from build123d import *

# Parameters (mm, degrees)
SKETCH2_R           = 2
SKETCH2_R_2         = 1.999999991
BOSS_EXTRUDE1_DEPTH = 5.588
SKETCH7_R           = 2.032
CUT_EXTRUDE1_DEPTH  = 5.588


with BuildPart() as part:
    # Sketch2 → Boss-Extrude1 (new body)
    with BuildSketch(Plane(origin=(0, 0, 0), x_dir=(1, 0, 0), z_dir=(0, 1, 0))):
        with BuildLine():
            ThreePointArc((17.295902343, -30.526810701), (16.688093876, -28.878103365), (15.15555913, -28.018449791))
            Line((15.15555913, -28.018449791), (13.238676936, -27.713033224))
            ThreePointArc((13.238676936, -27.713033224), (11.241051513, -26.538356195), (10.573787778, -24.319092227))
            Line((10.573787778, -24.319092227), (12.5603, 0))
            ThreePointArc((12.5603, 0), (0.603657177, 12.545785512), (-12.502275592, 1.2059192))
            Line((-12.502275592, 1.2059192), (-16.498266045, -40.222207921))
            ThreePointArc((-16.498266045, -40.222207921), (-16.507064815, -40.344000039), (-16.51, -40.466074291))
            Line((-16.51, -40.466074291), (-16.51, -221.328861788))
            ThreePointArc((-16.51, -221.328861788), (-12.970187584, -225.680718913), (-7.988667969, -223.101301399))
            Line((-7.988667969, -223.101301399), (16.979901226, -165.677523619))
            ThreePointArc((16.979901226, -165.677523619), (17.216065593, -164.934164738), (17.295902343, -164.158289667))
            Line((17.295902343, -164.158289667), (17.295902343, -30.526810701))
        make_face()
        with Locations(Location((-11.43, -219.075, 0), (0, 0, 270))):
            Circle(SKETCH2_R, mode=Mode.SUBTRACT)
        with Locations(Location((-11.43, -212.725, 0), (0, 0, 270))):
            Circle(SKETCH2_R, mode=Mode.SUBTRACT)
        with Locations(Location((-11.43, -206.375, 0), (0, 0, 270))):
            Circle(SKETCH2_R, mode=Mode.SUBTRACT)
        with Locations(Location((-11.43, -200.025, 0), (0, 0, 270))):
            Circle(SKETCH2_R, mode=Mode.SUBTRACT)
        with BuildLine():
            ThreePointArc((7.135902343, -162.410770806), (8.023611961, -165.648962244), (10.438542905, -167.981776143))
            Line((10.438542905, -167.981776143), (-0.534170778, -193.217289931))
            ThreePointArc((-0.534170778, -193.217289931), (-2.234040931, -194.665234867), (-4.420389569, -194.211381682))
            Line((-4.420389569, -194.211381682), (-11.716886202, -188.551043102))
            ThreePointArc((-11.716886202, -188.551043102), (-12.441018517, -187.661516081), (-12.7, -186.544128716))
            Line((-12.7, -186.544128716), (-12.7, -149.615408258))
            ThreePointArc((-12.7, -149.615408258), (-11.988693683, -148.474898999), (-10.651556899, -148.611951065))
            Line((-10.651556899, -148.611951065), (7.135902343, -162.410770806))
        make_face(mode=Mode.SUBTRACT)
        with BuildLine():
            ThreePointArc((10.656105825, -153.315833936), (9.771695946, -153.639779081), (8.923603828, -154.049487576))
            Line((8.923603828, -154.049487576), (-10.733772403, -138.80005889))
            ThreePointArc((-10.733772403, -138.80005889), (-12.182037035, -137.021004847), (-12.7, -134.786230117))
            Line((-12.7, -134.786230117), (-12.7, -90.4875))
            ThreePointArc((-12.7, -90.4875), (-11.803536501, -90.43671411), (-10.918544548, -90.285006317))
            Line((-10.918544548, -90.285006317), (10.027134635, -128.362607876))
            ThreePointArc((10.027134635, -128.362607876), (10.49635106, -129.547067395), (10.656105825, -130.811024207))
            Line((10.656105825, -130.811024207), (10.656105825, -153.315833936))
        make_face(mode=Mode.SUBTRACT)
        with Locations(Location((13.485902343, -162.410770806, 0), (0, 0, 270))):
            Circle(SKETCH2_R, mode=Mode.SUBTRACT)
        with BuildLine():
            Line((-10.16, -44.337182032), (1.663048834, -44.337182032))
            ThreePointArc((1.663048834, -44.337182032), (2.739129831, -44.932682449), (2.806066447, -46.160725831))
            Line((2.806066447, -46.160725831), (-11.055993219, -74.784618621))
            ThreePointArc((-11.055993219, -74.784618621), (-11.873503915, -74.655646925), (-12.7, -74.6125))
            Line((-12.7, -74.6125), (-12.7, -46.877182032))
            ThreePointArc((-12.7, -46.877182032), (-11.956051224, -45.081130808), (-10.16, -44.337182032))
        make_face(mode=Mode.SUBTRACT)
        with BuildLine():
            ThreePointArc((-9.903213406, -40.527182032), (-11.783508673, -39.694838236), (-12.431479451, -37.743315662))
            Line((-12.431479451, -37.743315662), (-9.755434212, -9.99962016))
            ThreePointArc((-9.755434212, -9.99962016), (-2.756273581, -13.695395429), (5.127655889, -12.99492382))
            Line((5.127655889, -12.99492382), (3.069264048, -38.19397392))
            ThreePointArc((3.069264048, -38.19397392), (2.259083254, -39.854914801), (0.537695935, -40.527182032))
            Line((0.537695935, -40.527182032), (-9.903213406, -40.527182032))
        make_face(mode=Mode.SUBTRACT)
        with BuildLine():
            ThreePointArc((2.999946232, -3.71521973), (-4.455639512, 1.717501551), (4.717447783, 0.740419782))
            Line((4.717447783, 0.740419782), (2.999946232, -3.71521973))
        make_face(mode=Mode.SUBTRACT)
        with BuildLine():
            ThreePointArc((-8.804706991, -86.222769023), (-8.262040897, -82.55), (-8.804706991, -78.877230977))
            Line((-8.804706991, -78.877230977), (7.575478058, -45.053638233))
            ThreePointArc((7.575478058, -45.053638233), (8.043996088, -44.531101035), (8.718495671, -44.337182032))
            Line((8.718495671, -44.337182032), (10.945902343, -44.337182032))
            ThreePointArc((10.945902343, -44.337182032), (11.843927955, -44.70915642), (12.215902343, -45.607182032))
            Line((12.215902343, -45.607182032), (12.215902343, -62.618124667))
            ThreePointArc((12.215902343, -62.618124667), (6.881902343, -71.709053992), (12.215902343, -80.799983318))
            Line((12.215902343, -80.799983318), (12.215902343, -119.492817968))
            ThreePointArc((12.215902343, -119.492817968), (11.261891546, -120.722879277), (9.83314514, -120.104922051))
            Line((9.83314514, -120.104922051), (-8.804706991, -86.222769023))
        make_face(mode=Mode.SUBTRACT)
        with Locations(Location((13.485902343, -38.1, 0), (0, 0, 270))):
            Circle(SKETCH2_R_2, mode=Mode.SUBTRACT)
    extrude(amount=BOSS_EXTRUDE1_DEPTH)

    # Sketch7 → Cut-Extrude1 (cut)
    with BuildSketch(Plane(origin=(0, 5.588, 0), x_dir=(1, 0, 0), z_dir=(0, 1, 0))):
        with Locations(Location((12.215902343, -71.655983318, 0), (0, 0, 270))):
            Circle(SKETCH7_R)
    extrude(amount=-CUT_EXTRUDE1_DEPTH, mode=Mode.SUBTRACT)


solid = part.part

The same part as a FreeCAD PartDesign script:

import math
import FreeCAD as App
import Part
import Sketcher

V = App.Vector
Q = App.Units.Quantity

doc = App.newDocument("Part")
body = doc.addObject("PartDesign::Body", "Body")

sketch1 = doc.addObject("Sketcher::SketchObject", "Sketch")
body.addObject(sketch1)
sketch1.AttachmentSupport = (doc.XZ_Plane, [""])
sketch1.MapMode = "FlatFace"
sketch1.addGeometry(Part.ArcOfCircle(Part.Circle(V(14.755902, 30.526811, 0), V(0, 0, 1), 2.54), math.radians(-80.947165), math.radians(0)), False)
sketch1.addGeometry(Part.LineSegment(V(15.155559, 28.01845, 0), V(13.238677, 27.713033, 0)), False)
sketch1.addGeometry(Part.ArcOfCircle(Part.Circle(V(13.738248, 24.577582, 0), V(0, 0, 1), 3.175), math.radians(99.052835), math.radians(184.669855)), False)
sketch1.addGeometry(Part.LineSegment(V(10.573788, 24.319092, 0), V(12.5603, 0, 0)), False)
sketch1.addGeometry(Part.ArcOfCircle(Part.Circle(V(0, 0, 0), V(0, 0, 1), 12.5603), math.radians(-174.490524), math.radians(0)), False)
sketch1.addGeometry(Part.LineSegment(V(-12.502276, -1.205919, 0), V(-16.498266, 40.222208, 0)), False)
sketch1.addGeometry(Part.ArcOfCircle(Part.Circle(V(-13.97, 40.466074, 0), V(0, 0, 1), 2.54), math.radians(-180), math.radians(-174.490524)), False)
sketch1.addGeometry(Part.LineSegment(V(-16.51, 40.466074, 0), V(-16.51, 221.328862, 0)), False)
sketch1.addGeometry(Part.ArcOfCircle(Part.Circle(V(-12.065, 221.328862, 0), V(0, 0, 1), 4.445), math.radians(23.5), math.radians(180)), False)
sketch1.addGeometry(Part.LineSegment(V(-7.988668, 223.101301, 0), V(16.979901, 165.677524, 0)), False)
sketch1.addGeometry(Part.ArcOfCircle(Part.Circle(V(13.485902, 164.15829, 0), V(0, 0, 1), 3.81), math.radians(0), math.radians(23.5)), False)
sketch1.addGeometry(Part.LineSegment(V(17.295902, 164.15829, 0), V(17.295902, 30.526811, 0)), False)
sketch1.addGeometry(Part.Circle(V(-11.43, 219.075, 0), V(0, 0, 1), 2), False)
sketch1.addGeometry(Part.Circle(V(-11.43, 212.725, 0), V(0, 0, 1), 2), False)
sketch1.addGeometry(Part.Circle(V(-11.43, 206.375, 0), V(0, 0, 1), 2), False)
sketch1.addGeometry(Part.Circle(V(-11.43, 200.025, 0), V(0, 0, 1), 2), False)
sketch1.addGeometry(Part.LineSegment(V(-10.651557, 148.611951, 0), V(7.135902, 162.410771, 0)), False)
sketch1.addGeometry(Part.ArcOfCircle(Part.Circle(V(13.485902, 162.410771, 0), V(0, 0, 1), 6.35), math.radians(118.678814), math.radians(180)), False)
sketch1.addGeometry(Part.LineSegment(V(10.438543, 167.981776, 0), V(-0.534171, 193.21729, 0)), False)
sketch1.addGeometry(Part.ArcOfCircle(Part.Circle(V(-2.863503, 192.204467, 0), V(0, 0, 1), 2.54), math.radians(23.5), math.radians(127.80292)), False)
sketch1.addGeometry(Part.LineSegment(V(-4.42039, 194.211382, 0), V(-11.716886, 188.551043, 0)), False)
sketch1.addGeometry(Part.ArcOfCircle(Part.Circle(V(-10.16, 186.544129, 0), V(0, 0, 1), 2.54), math.radians(127.80292), math.radians(180)), False)
sketch1.addGeometry(Part.LineSegment(V(-12.7, 186.544129, 0), V(-12.7, 149.615408, 0)), False)
sketch1.addGeometry(Part.ArcOfCircle(Part.Circle(V(-11.43, 149.615408, 0), V(0, 0, 1), 1.27), math.radians(180), math.radians(307.80292)), False)
sketch1.addGeometry(Part.LineSegment(V(10.656106, 130.811024, 0), V(10.656106, 153.315834, 0)), False)
sketch1.addGeometry(Part.ArcOfCircle(Part.Circle(V(13.485902, 162.410771, 0), V(0, 0, 1), 9.525), math.radians(-118.618901), math.radians(-107.282995)), False)
sketch1.addGeometry(Part.LineSegment(V(8.923604, 154.049488, 0), V(-10.733772, 138.800059, 0)), False)
sketch1.addGeometry(Part.ArcOfCircle(Part.Circle(V(-7.62, 134.78623, 0), V(0, 0, 1), 5.08), math.radians(127.80292), math.radians(180)), False)
sketch1.addGeometry(Part.LineSegment(V(-12.7, 134.78623, 0), V(-12.7, 90.4875, 0)), False)
sketch1.addGeometry(Part.ArcOfCircle(Part.Circle(V(-12.7, 82.55, 0), V(0, 0, 1), 7.9375), math.radians(77.030324), math.radians(90)), False)
sketch1.addGeometry(Part.LineSegment(V(-10.918545, 90.285006, 0), V(10.027135, 128.362608, 0)), False)
sketch1.addGeometry(Part.ArcOfCircle(Part.Circle(V(5.576106, 130.811024, 0), V(0, 0, 1), 5.08), math.radians(-28.814257), math.radians(0)), False)
sketch1.addGeometry(Part.Circle(V(13.485902, 162.410771, 0), V(0, 0, 1), 2), False)
sketch1.addGeometry(Part.ArcOfCircle(Part.Circle(V(-10.16, 46.877182, 0), V(0, 0, 1), 2.54), math.radians(-180), math.radians(-90)), False)
sketch1.addGeometry(Part.LineSegment(V(-10.16, 44.337182, 0), V(1.663049, 44.337182, 0)), False)
sketch1.addGeometry(Part.ArcOfCircle(Part.Circle(V(1.663049, 45.607182, 0), V(0, 0, 1), 1.27), math.radians(-90), math.radians(25.84011)), False)
sketch1.addGeometry(Part.LineSegment(V(2.806066, 46.160726, 0), V(-11.055993, 74.784619, 0)), False)
sketch1.addGeometry(Part.ArcOfCircle(Part.Circle(V(-12.7, 82.55, 0), V(0, 0, 1), 7.9375), math.radians(-90), math.radians(-78.046431)), False)
sketch1.addGeometry(Part.LineSegment(V(-12.7, 74.6125, 0), V(-12.7, 46.877182, 0)), False)
sketch1.addGeometry(Part.LineSegment(V(0.537696, 40.527182, 0), V(-9.903213, 40.527182, 0)), False)
sketch1.addGeometry(Part.ArcOfCircle(Part.Circle(V(-9.903213, 37.987182, 0), V(0, 0, 1), 2.54), math.radians(90), math.radians(185.509476)), False)
sketch1.addGeometry(Part.LineSegment(V(-12.431479, 37.743316, 0), V(-9.755434, 9.99962, 0)), False)
sketch1.addGeometry(Part.ArcOfCircle(Part.Circle(V(0, 0, 0), V(0, 0, 1), 13.97), math.radians(68.466346), math.radians(134.291821)), False)
sketch1.addGeometry(Part.LineSegment(V(5.127656, 12.994924, 0), V(3.069264, 38.193974, 0)), False)
sketch1.addGeometry(Part.ArcOfCircle(Part.Circle(V(0.537696, 37.987182, 0), V(0, 0, 1), 2.54), math.radians(4.669855), math.radians(90)), False)
sketch1.addGeometry(Part.LineSegment(V(4.717448, -0.74042, 0), V(2.999946, 3.71522, 0)), False)
sketch1.addGeometry(Part.ArcOfCircle(Part.Circle(V(0, 0, 0), V(0, 0, 1), 4.7752), math.radians(51.08), math.radians(351.08)), False)
sketch1.addGeometry(Part.LineSegment(V(9.833145, 120.104922, 0), V(-8.804707, 86.222769, 0)), False)
sketch1.addGeometry(Part.ArcOfCircle(Part.Circle(V(-20.962041, 82.55, 0), V(0, 0, 1), 12.7), math.radians(-16.809733), math.radians(16.809733)), False)
sketch1.addGeometry(Part.LineSegment(V(-8.804707, 78.877231, 0), V(7.575478, 45.053638, 0)), False)
sketch1.addGeometry(Part.ArcOfCircle(Part.Circle(V(8.718496, 45.607182, 0), V(0, 0, 1), 1.27), math.radians(-154.15989), math.radians(-90)), False)
sketch1.addGeometry(Part.LineSegment(V(8.718496, 44.337182, 0), V(10.945902, 44.337182, 0)), False)
sketch1.addGeometry(Part.ArcOfCircle(Part.Circle(V(10.945902, 45.607182, 0), V(0, 0, 1), 1.27), math.radians(-90), math.radians(0)), False)
sketch1.addGeometry(Part.LineSegment(V(12.215902, 45.607182, 0), V(12.215902, 62.618125, 0)), False)
sketch1.addGeometry(Part.ArcOfCircle(Part.Circle(V(17.295902, 71.709054, 0), V(0, 0, 1), 10.414), math.radians(119.196404), math.radians(240.803596)), False)
sketch1.addGeometry(Part.LineSegment(V(12.215902, 80.799983, 0), V(12.215902, 119.492818, 0)), False)
sketch1.addGeometry(Part.ArcOfCircle(Part.Circle(V(10.945902, 119.492818, 0), V(0, 0, 1), 1.27), math.radians(0), math.radians(151.185743)), False)
sketch1.addGeometry(Part.Circle(V(13.485902, 38.1, 0), V(0, 0, 1), 2), False)
sketch1.addConstraint(Sketcher.Constraint("Tangent", 0, 1, 1, 1))
sketch1.addConstraint(Sketcher.Constraint("Tangent", 1, 2, 2, 1))
sketch1.addConstraint(Sketcher.Constraint("Tangent", 2, 2, 3, 1))
sketch1.addConstraint(Sketcher.Constraint("Coincident", 3, 2, 4, 2))
sketch1.addConstraint(Sketcher.Constraint("Tangent", 4, 1, 5, 1))
sketch1.addConstraint(Sketcher.Constraint("Tangent", 5, 2, 6, 2))
sketch1.addConstraint(Sketcher.Constraint("Tangent", 6, 1, 7, 1))
sketch1.addConstraint(Sketcher.Constraint("Tangent", 7, 2, 8, 2))
sketch1.addConstraint(Sketcher.Constraint("Tangent", 8, 1, 9, 1))
sketch1.addConstraint(Sketcher.Constraint("Tangent", 9, 2, 10, 2))
sketch1.addConstraint(Sketcher.Constraint("Tangent", 10, 1, 11, 1))
sketch1.addConstraint(Sketcher.Constraint("Tangent", 11, 2, 0, 2))
sketch1.addConstraint(Sketcher.Constraint("Coincident", 16, 2, 17, 2))
sketch1.addConstraint(Sketcher.Constraint("Coincident", 17, 1, 18, 1))
sketch1.addConstraint(Sketcher.Constraint("Tangent", 18, 2, 19, 1))
sketch1.addConstraint(Sketcher.Constraint("Tangent", 19, 2, 20, 1))
sketch1.addConstraint(Sketcher.Constraint("Tangent", 20, 2, 21, 1))
sketch1.addConstraint(Sketcher.Constraint("Tangent", 21, 2, 22, 1))
sketch1.addConstraint(Sketcher.Constraint("Tangent", 22, 2, 23, 1))
sketch1.addConstraint(Sketcher.Constraint("Tangent", 23, 2, 16, 1))
sketch1.addConstraint(Sketcher.Constraint("Coincident", 24, 2, 25, 2))
sketch1.addConstraint(Sketcher.Constraint("Coincident", 25, 1, 26, 1))
sketch1.addConstraint(Sketcher.Constraint("Tangent", 26, 2, 27, 1))
sketch1.addConstraint(Sketcher.Constraint("Tangent", 27, 2, 28, 1))
sketch1.addConstraint(Sketcher.Constraint("Coincident", 28, 2, 29, 2))
sketch1.addConstraint(Sketcher.Constraint("Coincident", 29, 1, 30, 1))
sketch1.addConstraint(Sketcher.Constraint("Tangent", 30, 2, 31, 1))
sketch1.addConstraint(Sketcher.Constraint("Tangent", 31, 2, 24, 1))
sketch1.addConstraint(Sketcher.Constraint("Tangent", 33, 2, 34, 1))
sketch1.addConstraint(Sketcher.Constraint("Tangent", 34, 2, 35, 1))
sketch1.addConstraint(Sketcher.Constraint("Tangent", 35, 2, 36, 1))
sketch1.addConstraint(Sketcher.Constraint("Coincident", 36, 2, 37, 2))
sketch1.addConstraint(Sketcher.Constraint("Coincident", 37, 1, 38, 1))
sketch1.addConstraint(Sketcher.Constraint("Tangent", 38, 2, 33, 1))
sketch1.addConstraint(Sketcher.Constraint("Tangent", 39, 2, 40, 1))
sketch1.addConstraint(Sketcher.Constraint("Tangent", 40, 2, 41, 1))
sketch1.addConstraint(Sketcher.Constraint("Coincident", 41, 2, 42, 2))
sketch1.addConstraint(Sketcher.Constraint("Coincident", 42, 1, 43, 1))
sketch1.addConstraint(Sketcher.Constraint("Tangent", 43, 2, 44, 1))
sketch1.addConstraint(Sketcher.Constraint("Tangent", 44, 2, 39, 1))
sketch1.addConstraint(Sketcher.Constraint("Coincident", 45, 1, 46, 2))
sketch1.addConstraint(Sketcher.Constraint("Coincident", 46, 1, 45, 2))
sketch1.addConstraint(Sketcher.Constraint("Coincident", 47, 2, 48, 2))
sketch1.addConstraint(Sketcher.Constraint("Coincident", 48, 1, 49, 1))
sketch1.addConstraint(Sketcher.Constraint("Tangent", 49, 2, 50, 1))
sketch1.addConstraint(Sketcher.Constraint("Tangent", 50, 2, 51, 1))
sketch1.addConstraint(Sketcher.Constraint("Tangent", 51, 2, 52, 1))
sketch1.addConstraint(Sketcher.Constraint("Tangent", 52, 2, 53, 1))
sketch1.addConstraint(Sketcher.Constraint("Coincident", 53, 2, 54, 2))
sketch1.addConstraint(Sketcher.Constraint("Coincident", 54, 1, 55, 1))
sketch1.addConstraint(Sketcher.Constraint("Tangent", 55, 2, 56, 1))
sketch1.addConstraint(Sketcher.Constraint("Tangent", 56, 2, 47, 1))
sketch1.addConstraint(Sketcher.Constraint("Vertical", 7))
sketch1.addConstraint(Sketcher.Constraint("Vertical", 11))
sketch1.addConstraint(Sketcher.Constraint("Vertical", 22))
sketch1.addConstraint(Sketcher.Constraint("Vertical", 24))
sketch1.addConstraint(Sketcher.Constraint("Vertical", 28))
sketch1.addConstraint(Sketcher.Constraint("Horizontal", 34))
sketch1.addConstraint(Sketcher.Constraint("Vertical", 38))
sketch1.addConstraint(Sketcher.Constraint("Horizontal", 39))
sketch1.addConstraint(Sketcher.Constraint("Horizontal", 51))
sketch1.addConstraint(Sketcher.Constraint("Vertical", 53))
sketch1.addConstraint(Sketcher.Constraint("Vertical", 55))
sketch1.addConstraint(Sketcher.Constraint("Coincident", 4, 3, -1, 1))
sketch1.addConstraint(Sketcher.Constraint("Coincident", 42, 3, -1, 1))
sketch1.addConstraint(Sketcher.Constraint("Coincident", 46, 3, -1, 1))
sketch1.addConstraint(Sketcher.Constraint("Coincident", 25, 3, 17, 3))
sketch1.addConstraint(Sketcher.Constraint("Coincident", 32, 3, 17, 3))
sketch1.addConstraint(Sketcher.Constraint("Coincident", 37, 3, 29, 3))
sketch1.addConstraint(Sketcher.Constraint("Equal", 0, 6))
sketch1.addConstraint(Sketcher.Constraint("Equal", 12, 13))
sketch1.addConstraint(Sketcher.Constraint("Equal", 13, 14))
sketch1.addConstraint(Sketcher.Constraint("Equal", 14, 15))
sketch1.addConstraint(Sketcher.Constraint("Equal", 6, 19))
sketch1.addConstraint(Sketcher.Constraint("Equal", 19, 21))
sketch1.addConstraint(Sketcher.Constraint("Equal", 27, 31))
sketch1.addConstraint(Sketcher.Constraint("Equal", 15, 32))
sketch1.addConstraint(Sketcher.Constraint("Equal", 21, 33))
sketch1.addConstraint(Sketcher.Constraint("Equal", 23, 35))
sketch1.addConstraint(Sketcher.Constraint("Equal", 29, 37))
sketch1.addConstraint(Sketcher.Constraint("Equal", 33, 40))
sketch1.addConstraint(Sketcher.Constraint("Equal", 40, 44))
sketch1.addConstraint(Sketcher.Constraint("Equal", 35, 50))
sketch1.addConstraint(Sketcher.Constraint("Equal", 50, 52))
sketch1.addConstraint(Sketcher.Constraint("Equal", 52, 56))
sketch1.addConstraint(Sketcher.Constraint("Equal", 32, 57))
sketch1.addConstraint(Sketcher.Constraint("PointOnObject", 3, 2, -1))
sketch1.addConstraint(Sketcher.Constraint("Parallel", 9, 18))
sketch1.addConstraint(Sketcher.Constraint("Parallel", 16, 20))
sketch1.addConstraint(Sketcher.Constraint("Parallel", 20, 26))
sketch1.addConstraint(Sketcher.Constraint("Parallel", 5, 41))
sketch1.addConstraint(Sketcher.Constraint("Parallel", 3, 43))
sketch1.addConstraint(Sketcher.Constraint("Parallel", 30, 47))
sketch1.addConstraint(Sketcher.Constraint("Parallel", 36, 49))
sketch1.addConstraint(Sketcher.Constraint("Horizontal", 37, 3, 48, 3))
sketch1.addConstraint(Sketcher.Constraint("Horizontal", 35, 3, 50, 3))
sketch1.addConstraint(Sketcher.Constraint("Horizontal", 32, 3, 16, 2))
sketch1.addConstraint(Sketcher.Constraint("Vertical", 12, 3, 13, 3))
sketch1.addConstraint(Sketcher.Constraint("Vertical", 13, 3, 14, 3))
sketch1.addConstraint(Sketcher.Constraint("Vertical", 14, 3, 15, 3))
sketch1.addConstraint(Sketcher.Constraint("Vertical", 10, 3, 17, 3))
sketch1.addConstraint(Sketcher.Constraint("Vertical", 15, 3, 23, 3))
sketch1.addConstraint(Sketcher.Constraint("Vertical", 21, 3, 33, 3))
sketch1.addConstraint(Sketcher.Constraint("Vertical", 52, 3, 56, 3))
sketch1.addConstraint(Sketcher.Constraint("Vertical", 32, 3, 57, 3))
sketch1.addConstraint(Sketcher.Constraint("Vertical", 54, 3, 10, 1))
sketch1.addConstraint(Sketcher.Constraint("Vertical", 37, 3, 21, 2))
sketch1.addConstraint(Sketcher.Constraint("Vertical", 22, 2, 27, 2))
sketch1.addConstraint(Sketcher.Constraint("Vertical", 47, 2, 48, 1))
sketch1.addConstraint(Sketcher.Constraint("Radius", 0, Q("0.1 in")))
sketch1.addConstraint(Sketcher.Constraint("Radius", 27, Q("0.2 in")))
sketch1.addConstraint(Sketcher.Constraint("Radius", 48, Q("0.5 in")))
sketch1.addConstraint(Sketcher.Constraint("Radius", 10, Q("0.15 in")))
sketch1.addConstraint(Sketcher.Constraint("Radius", 17, Q("0.25 in")))
sketch1.addConstraint(Sketcher.Constraint("Radius", 23, Q("0.05 in")))
sketch1.addConstraint(Sketcher.Constraint("Radius", 42, Q("0.55 in")))
sketch1.addConstraint(Sketcher.Constraint("Radius", 54, Q("0.41 in")))
sketch1.addConstraint(Sketcher.Constraint("Radius", 2, Q("0.125 in")))
sketch1.addConstraint(Sketcher.Constraint("Radius", 8, Q("0.175 in")))
sketch1.addConstraint(Sketcher.Constraint("Radius", 25, Q("0.375 in")))
sketch1.addConstraint(Sketcher.Constraint("Radius", 29, Q("0.3125 in")))
sketch1.addConstraint(Sketcher.Constraint("Radius", 46, Q("0.188 in")))
sketch1.addConstraint(Sketcher.Constraint("DistanceX", 21, 3, -1, 1, Q("0.4 in")))
sketch1.addConstraint(Sketcher.Constraint("DistanceY", -1, 1, 57, 3, Q("1.5 in")))
sketch1.addConstraint(Sketcher.Constraint("Angle", 9, Q("-66.5 deg")))
sketch1.addConstraint(Sketcher.Constraint("Radius", 4, Q("0.4945 in")))
sketch1.addConstraint(Sketcher.Constraint("Diameter", 12, 4.0))
sketch1.addConstraint(Sketcher.Constraint("DistanceX", 6, 3, -1, 1, Q("0.55 in")))
sketch1.addConstraint(Sketcher.Constraint("DistanceY", -1, 1, 29, 3, Q("3.25 in")))
sketch1.addConstraint(Sketcher.Constraint("Angle", 45, Q("111.08 deg")))
sketch1.addConstraint(Sketcher.Constraint("Distance", 45, Q("0.188 in")))
sketch1.addConstraint(Sketcher.Constraint("DistanceY", -1, 1, 12, 3, Q("8.625 in")))
sketch1.addConstraint(Sketcher.Constraint("DistanceY", -1, 1, 13, 3, Q("8.375 in")))
sketch1.addConstraint(Sketcher.Constraint("DistanceY", -1, 1, 14, 3, Q("8.125 in")))
sketch1.addConstraint(Sketcher.Constraint("DistanceY", -1, 1, 15, 3, Q("7.875 in")))
sketch1.addConstraint(Sketcher.Constraint("DistanceX", -1, 1, 9, 2, Q("0.6685 in")))
sketch1.addConstraint(Sketcher.Constraint("Distance", 5, 41.6204))
sketch1.addConstraint(Sketcher.Constraint("DistanceX", 34, 1, 34, 2, 11.823049))
sketch1.addConstraint(Sketcher.Constraint("DistanceX", 39, 2, 39, 1, 10.440909))
sketch1.addConstraint(Sketcher.Constraint("DistanceY", 11, 2, 11, 1, 133.631479))
sketch1.addConstraint(Sketcher.Constraint("DistanceY", 22, 2, 22, 1, 36.92872))
sketch1.addConstraint(Sketcher.Constraint("DistanceY", 24, 1, 24, 2, 22.50481))
sketch1.addConstraint(Sketcher.Constraint("DistanceY", 28, 2, 28, 1, 44.29873))
sketch1.addConstraint(Sketcher.Constraint("DistanceY", -1, 1, 8, 1, 223.101301))
sketch1.addConstraint(Sketcher.Constraint("Distance", 1, 1.941061))
sketch1.addConstraint(Sketcher.Constraint("Distance", 3, 24.400092))
sketch1.addConstraint(Sketcher.Constraint("Distance", 18, 27.517842))
sketch1.addConstraint(Sketcher.Constraint("Distance", 43, 25.28298))
sketch1.addConstraint(Sketcher.Constraint("Distance", 47, 38.670012))
sketch1.addConstraint(Sketcher.Constraint("Distance", 49, 37.581191))
sketch1.addConstraint(Sketcher.Constraint("DistanceX", 51, 1, 51, 2, 2.227407))
sketch1.addConstraint(Sketcher.Constraint("DistanceY", 38, 2, 38, 1, 27.735318))
sketch1.addConstraint(Sketcher.Constraint("DistanceY", 53, 1, 53, 2, 17.010943))
sketch1.addConstraint(Sketcher.Constraint("DistanceY", 55, 1, 55, 2, 38.692835))
sketch1.addConstraint(Sketcher.Constraint("DistanceY", -1, 1, 17, 3, 162.410771))
sketch1.addConstraint(Sketcher.Constraint("DistanceY", -1, 1, 21, 3, 186.544129))
sketch1.addConstraint(Sketcher.Constraint("DistanceX", 48, 3, -1, 1, 20.962041))
sketch1.addConstraint(Sketcher.Constraint("DistanceX", 40, 2, -1, 1, 12.431479))
sketch1.addConstraint(Sketcher.Constraint("Distance", 30, 43.458316))
pad1 = doc.addObject("PartDesign::Pad", "Pad")
body.addObject(pad1)
pad1.Profile = sketch1
pad1.Length = Q("0.22 in")
pad1.Reversed = True

sketch2 = doc.addObject("Sketcher::SketchObject", "Sketch001")
body.addObject(sketch2)
sketch2.AttachmentSupport = (doc.XZ_Plane, [""])
sketch2.MapMode = "FlatFace"
sketch2.AttachmentOffset = App.Placement(V(0, 0, -0.22 * 25.4), App.Rotation())
sketch2.addGeometry(Part.Circle(V(12.215902, 71.655983, 0), V(0, 0, 1), 2.032), False)
sketch2.addConstraint(Sketcher.Constraint("Diameter", 0, Q("0.16 in")))
sketch2.addConstraint(Sketcher.Constraint("DistanceX", -1, 1, 0, 3, 12.215902))
sketch2.addConstraint(Sketcher.Constraint("DistanceY", -1, 1, 0, 3, 71.655983))
pocket1 = doc.addObject("PartDesign::Pocket", "Pocket")
body.addObject(pocket1)
pocket1.Profile = sketch2
pocket1.Length = Q("0.22 in")
pocket1.Reversed = True

doc.recompute()
